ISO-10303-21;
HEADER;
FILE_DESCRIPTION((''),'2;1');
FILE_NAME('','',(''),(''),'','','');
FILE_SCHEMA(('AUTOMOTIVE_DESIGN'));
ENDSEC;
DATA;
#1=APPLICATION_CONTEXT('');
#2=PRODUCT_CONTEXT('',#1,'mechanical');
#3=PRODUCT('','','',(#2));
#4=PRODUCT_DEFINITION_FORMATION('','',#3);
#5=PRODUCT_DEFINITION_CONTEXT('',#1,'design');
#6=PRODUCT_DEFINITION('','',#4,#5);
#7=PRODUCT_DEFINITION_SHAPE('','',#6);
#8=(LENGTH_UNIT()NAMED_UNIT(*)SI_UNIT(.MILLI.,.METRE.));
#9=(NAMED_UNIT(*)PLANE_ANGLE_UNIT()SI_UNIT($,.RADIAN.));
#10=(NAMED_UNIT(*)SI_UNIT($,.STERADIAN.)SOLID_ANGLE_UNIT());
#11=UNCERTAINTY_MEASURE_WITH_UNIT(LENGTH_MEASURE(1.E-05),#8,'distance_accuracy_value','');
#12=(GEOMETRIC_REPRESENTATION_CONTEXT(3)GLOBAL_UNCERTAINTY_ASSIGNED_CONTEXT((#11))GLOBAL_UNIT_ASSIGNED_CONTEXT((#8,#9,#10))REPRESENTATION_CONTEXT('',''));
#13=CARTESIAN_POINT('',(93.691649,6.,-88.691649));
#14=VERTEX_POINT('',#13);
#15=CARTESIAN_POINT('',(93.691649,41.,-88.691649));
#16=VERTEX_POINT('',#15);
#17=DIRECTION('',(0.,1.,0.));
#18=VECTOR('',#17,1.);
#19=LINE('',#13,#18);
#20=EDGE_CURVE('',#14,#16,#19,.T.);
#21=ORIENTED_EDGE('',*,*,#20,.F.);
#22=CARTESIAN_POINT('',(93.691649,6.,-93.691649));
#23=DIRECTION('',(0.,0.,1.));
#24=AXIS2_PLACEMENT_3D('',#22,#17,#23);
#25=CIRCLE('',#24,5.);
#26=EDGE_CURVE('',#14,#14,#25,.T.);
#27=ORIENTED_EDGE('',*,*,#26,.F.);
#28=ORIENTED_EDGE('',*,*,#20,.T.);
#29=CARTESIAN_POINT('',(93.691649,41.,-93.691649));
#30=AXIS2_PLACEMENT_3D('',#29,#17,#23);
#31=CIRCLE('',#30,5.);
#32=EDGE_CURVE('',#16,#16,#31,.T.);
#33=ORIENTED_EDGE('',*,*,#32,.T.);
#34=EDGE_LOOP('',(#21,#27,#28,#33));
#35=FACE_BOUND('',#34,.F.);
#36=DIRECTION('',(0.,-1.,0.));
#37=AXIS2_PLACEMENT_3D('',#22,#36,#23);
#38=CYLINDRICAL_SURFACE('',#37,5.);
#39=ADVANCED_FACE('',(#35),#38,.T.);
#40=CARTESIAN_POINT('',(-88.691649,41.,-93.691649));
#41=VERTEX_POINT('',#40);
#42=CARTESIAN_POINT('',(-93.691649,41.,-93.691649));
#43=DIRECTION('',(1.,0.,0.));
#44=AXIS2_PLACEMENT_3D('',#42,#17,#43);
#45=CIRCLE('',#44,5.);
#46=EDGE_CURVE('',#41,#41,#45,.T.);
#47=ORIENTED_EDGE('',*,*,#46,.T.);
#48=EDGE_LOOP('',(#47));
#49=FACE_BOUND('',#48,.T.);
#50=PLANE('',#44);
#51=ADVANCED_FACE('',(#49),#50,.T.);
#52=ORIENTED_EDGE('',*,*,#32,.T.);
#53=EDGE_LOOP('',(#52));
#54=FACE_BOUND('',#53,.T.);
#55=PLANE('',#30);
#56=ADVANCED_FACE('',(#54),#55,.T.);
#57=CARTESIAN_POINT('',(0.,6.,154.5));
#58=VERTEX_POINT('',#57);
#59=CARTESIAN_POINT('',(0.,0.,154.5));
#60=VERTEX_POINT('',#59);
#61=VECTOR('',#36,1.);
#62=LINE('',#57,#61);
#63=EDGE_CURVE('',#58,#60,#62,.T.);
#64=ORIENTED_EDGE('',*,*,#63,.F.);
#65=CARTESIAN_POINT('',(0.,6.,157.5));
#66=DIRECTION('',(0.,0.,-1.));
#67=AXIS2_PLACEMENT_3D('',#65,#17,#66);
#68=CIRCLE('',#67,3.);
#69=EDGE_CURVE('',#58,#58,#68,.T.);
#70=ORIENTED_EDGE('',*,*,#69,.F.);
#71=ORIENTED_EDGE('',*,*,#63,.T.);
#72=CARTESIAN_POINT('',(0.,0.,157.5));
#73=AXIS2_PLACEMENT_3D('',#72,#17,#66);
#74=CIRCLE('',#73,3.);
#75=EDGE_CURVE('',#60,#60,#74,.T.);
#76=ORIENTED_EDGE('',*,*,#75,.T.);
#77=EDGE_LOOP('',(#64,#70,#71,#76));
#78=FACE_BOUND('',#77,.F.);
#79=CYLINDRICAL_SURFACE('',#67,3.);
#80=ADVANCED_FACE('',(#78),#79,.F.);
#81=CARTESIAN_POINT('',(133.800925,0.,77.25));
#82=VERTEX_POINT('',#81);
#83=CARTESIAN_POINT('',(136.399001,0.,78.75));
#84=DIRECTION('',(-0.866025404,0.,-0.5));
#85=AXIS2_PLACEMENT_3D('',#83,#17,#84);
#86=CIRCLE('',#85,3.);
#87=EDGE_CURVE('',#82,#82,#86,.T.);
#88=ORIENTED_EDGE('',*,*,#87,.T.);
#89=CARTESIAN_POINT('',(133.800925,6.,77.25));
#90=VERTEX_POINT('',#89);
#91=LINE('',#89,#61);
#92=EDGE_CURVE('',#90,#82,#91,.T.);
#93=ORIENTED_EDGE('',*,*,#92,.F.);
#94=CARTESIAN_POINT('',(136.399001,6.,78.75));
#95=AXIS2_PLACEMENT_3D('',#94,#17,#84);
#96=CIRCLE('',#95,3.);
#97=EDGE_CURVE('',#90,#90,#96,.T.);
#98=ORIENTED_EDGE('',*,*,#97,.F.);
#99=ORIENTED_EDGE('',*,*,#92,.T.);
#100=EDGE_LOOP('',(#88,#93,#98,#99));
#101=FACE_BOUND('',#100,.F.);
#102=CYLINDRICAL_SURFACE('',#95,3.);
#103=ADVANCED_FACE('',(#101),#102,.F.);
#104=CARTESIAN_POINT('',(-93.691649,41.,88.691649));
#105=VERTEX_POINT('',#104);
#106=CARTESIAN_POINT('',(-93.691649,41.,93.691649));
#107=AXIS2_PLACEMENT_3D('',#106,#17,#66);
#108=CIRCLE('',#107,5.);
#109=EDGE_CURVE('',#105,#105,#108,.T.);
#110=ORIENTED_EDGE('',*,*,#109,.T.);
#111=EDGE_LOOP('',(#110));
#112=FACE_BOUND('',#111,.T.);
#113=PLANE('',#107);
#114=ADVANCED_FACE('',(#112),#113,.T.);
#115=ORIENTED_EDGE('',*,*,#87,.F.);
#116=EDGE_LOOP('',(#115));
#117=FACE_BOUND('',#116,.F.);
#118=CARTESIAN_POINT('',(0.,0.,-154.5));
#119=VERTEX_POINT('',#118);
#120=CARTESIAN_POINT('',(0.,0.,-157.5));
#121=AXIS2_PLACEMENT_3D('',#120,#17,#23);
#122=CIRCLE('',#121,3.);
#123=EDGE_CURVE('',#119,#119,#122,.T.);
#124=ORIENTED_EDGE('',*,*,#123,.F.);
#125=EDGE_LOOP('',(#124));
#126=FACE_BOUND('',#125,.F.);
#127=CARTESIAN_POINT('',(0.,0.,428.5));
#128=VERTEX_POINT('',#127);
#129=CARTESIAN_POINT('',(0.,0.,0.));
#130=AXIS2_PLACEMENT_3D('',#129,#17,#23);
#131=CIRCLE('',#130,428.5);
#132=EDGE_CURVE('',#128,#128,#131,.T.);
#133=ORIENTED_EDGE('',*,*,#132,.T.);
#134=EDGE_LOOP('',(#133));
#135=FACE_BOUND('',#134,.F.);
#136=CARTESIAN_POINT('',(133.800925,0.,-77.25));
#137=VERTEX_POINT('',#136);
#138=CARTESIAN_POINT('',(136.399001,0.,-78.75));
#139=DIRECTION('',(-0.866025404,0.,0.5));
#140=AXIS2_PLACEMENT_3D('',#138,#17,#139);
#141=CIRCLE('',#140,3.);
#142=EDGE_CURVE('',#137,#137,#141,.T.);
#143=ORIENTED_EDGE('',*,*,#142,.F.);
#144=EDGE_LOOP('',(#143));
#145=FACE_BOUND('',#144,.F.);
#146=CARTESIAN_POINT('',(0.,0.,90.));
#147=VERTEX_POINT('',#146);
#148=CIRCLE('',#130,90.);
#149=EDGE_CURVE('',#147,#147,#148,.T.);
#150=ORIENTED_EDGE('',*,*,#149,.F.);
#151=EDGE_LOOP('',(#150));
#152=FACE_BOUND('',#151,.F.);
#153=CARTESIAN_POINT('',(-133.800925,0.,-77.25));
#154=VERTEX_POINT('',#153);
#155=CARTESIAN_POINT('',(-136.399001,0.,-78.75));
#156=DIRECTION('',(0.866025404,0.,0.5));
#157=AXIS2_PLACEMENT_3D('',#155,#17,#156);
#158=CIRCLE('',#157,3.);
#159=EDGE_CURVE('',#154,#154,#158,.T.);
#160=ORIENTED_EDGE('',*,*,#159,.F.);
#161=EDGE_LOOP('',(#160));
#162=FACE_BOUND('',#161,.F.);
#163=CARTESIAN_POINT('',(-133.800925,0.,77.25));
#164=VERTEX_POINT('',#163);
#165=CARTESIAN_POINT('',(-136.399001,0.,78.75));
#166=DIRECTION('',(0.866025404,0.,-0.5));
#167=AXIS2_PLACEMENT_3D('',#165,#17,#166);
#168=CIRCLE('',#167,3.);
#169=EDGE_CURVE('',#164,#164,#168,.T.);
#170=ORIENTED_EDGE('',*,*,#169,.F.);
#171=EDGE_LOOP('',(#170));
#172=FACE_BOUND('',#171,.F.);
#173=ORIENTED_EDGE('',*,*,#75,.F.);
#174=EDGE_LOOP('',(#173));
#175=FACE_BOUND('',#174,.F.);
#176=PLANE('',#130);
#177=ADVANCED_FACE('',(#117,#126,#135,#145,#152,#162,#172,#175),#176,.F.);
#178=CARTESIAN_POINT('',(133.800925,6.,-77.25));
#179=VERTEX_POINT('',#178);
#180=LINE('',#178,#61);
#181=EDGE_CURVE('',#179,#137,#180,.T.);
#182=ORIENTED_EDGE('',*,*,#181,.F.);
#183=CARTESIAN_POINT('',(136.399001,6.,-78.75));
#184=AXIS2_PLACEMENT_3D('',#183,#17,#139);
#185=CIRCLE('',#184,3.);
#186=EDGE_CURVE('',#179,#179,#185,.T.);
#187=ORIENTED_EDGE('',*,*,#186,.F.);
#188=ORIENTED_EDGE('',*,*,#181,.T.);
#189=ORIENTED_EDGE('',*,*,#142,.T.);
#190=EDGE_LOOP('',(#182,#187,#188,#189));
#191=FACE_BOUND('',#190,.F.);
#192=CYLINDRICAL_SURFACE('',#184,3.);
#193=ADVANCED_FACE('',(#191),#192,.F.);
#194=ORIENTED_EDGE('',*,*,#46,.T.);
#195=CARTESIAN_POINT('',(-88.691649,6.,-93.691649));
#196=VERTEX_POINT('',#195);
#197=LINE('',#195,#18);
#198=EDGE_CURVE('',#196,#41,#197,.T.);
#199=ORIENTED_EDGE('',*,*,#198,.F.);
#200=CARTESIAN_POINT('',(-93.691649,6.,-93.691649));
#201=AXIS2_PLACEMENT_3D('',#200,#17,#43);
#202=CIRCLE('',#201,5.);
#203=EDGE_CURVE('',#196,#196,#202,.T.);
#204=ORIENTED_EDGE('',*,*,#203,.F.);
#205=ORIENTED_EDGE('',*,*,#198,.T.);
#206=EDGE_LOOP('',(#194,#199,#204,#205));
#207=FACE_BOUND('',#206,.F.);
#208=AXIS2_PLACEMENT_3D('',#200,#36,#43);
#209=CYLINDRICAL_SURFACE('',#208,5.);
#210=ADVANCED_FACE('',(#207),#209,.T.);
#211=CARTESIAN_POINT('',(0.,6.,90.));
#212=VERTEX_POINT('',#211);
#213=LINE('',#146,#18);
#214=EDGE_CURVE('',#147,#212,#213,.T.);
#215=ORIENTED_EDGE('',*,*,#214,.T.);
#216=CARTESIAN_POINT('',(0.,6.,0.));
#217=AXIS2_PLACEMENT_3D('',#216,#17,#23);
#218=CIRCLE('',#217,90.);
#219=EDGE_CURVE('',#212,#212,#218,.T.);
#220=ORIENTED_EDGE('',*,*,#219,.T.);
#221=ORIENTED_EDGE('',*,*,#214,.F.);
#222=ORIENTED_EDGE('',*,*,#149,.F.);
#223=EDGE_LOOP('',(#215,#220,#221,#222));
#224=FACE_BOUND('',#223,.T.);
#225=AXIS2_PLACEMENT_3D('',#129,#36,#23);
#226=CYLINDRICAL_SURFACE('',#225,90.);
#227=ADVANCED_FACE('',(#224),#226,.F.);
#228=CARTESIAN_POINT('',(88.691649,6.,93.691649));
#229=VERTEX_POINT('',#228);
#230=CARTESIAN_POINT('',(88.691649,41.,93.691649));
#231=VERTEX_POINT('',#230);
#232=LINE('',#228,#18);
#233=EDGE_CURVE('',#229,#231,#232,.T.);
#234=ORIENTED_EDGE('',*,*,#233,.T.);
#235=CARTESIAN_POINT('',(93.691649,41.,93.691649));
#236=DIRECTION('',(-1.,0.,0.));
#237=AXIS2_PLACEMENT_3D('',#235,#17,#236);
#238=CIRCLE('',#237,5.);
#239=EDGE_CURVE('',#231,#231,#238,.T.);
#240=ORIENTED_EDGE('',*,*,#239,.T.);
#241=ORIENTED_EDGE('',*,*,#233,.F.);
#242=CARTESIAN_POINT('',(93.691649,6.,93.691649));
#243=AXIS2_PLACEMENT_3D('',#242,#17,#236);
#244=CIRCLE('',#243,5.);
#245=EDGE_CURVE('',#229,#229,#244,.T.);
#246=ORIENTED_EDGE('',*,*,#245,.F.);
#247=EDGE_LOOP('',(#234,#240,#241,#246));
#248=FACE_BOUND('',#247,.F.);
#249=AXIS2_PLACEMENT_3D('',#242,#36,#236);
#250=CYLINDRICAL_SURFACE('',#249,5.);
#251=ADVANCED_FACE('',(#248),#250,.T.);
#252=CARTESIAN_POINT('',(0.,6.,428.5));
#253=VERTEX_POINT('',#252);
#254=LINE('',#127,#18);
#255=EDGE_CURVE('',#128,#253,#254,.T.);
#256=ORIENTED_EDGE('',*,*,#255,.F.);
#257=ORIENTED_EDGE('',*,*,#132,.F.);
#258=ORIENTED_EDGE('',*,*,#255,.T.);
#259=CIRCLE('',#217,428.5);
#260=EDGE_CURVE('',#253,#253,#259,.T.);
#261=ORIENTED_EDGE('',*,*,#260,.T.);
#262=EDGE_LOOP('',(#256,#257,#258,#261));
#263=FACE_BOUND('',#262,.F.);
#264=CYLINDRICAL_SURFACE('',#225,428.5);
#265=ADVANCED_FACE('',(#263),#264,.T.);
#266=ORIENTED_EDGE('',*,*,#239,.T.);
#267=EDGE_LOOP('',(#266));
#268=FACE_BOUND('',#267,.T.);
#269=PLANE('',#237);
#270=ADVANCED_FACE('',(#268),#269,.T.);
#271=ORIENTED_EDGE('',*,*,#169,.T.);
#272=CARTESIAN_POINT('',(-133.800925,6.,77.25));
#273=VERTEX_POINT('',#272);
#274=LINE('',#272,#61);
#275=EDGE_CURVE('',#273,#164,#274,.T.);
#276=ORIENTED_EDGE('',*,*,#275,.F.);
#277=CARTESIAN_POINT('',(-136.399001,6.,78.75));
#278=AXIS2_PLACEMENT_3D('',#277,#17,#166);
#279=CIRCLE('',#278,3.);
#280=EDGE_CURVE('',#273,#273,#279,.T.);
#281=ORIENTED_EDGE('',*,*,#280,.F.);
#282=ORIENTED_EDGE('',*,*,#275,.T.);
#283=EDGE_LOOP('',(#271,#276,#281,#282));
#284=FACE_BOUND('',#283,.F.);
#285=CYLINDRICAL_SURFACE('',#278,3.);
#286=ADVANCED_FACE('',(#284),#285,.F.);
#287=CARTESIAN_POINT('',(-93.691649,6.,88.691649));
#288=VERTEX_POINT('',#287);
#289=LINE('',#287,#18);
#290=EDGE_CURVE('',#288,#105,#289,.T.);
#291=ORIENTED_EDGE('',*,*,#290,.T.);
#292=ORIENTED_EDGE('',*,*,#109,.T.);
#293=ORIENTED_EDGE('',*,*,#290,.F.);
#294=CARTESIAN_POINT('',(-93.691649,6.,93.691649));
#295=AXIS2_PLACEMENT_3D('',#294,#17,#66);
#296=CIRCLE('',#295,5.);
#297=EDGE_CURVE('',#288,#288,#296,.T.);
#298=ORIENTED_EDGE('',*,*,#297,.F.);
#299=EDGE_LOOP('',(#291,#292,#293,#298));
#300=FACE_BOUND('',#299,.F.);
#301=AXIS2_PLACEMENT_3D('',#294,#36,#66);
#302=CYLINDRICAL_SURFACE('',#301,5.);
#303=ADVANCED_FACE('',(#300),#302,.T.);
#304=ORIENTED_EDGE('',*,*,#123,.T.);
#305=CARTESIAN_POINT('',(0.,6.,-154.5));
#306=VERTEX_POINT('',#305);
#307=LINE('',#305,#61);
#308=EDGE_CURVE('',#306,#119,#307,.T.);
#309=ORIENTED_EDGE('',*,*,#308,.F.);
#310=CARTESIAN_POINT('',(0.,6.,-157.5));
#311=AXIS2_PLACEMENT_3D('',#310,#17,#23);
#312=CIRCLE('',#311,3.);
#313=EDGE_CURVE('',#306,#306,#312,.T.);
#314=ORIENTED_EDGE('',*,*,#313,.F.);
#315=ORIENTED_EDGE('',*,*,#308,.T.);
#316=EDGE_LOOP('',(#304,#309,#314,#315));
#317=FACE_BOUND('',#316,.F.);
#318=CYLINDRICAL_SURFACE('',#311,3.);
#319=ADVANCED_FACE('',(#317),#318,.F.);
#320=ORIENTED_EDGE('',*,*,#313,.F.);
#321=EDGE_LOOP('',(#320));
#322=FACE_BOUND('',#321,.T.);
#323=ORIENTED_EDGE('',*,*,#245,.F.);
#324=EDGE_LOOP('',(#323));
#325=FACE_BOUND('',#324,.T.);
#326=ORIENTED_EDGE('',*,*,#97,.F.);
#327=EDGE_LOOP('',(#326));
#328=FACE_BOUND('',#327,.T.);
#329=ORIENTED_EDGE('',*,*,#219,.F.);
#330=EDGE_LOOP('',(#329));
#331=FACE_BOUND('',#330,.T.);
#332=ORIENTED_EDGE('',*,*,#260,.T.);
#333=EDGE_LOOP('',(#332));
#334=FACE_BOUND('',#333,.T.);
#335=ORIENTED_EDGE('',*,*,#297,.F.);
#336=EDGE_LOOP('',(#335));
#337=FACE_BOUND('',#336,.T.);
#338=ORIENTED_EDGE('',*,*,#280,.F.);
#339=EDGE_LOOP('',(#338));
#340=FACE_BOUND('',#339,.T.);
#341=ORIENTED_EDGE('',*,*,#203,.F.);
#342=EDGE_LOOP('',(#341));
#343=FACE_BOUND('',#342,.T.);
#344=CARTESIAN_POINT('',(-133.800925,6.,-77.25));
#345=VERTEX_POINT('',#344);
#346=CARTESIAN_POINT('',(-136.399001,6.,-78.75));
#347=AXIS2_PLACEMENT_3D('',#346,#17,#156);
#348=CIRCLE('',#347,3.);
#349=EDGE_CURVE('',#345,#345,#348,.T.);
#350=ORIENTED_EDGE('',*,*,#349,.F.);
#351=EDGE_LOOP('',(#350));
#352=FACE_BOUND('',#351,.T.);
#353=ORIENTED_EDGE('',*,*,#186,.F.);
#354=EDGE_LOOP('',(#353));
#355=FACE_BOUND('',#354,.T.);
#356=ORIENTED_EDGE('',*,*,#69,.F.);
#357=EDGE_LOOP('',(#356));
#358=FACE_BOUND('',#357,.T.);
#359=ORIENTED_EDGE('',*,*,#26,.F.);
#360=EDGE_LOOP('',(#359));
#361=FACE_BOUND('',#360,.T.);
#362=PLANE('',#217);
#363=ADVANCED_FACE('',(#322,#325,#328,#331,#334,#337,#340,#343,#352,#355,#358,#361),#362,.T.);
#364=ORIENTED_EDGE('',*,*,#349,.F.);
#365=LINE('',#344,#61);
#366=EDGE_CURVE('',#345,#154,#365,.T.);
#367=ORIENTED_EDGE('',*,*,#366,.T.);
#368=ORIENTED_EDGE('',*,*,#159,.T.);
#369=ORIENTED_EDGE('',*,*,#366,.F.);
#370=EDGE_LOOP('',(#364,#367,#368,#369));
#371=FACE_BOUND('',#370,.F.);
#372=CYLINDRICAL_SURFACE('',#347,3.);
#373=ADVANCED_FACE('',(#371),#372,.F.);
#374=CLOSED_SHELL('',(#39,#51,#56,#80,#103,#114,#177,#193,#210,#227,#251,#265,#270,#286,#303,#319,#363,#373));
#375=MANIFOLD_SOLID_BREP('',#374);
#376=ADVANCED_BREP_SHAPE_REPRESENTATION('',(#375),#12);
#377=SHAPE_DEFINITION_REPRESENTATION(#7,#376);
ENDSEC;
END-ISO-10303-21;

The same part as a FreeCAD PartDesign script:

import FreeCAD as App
import Part
import Sketcher
Q = App.Units.Quantity

doc = App.newDocument("Part")
params = doc.addObject("Spreadsheet::Sheet", "Params")
for row, (alias, value) in enumerate([
    ("sketch1_diameter", "857 mm"),
    ("sketch1_diameter2", "180 mm"),
    ("pad1_length", "6 mm"),
    ("sketch2_diameter", "6 mm"),
    ("pocket1_length", "6 mm"),
    ("sketch3_diameter", "10 mm"),
    ("pad2_length", "35 mm"),
], start=1):
    params.set(f"A{row}", alias)
    params.set(f"B{row}", "=" + value)
    params.setAlias(f"B{row}", alias)

body = doc.addObject("PartDesign::Body", "Body")

# Sketch on XZ plane
sketch1 = doc.addObject("Sketcher::SketchObject", "Sketch")
body.addObject(sketch1)
sketch1.AttachmentSupport = (doc.XZ_Plane, [""])
sketch1.MapMode = "FlatFace"
sketch1.addGeometry(Part.Circle(App.Vector(0, 0, 0), App.Vector(0, 0, 1), 428), False)
sketch1.addGeometry(Part.Circle(App.Vector(0, 0, 0), App.Vector(0, 0, 1), 90), False)
sketch1.addConstraint(Sketcher.Constraint("Coincident", 0, 3, -1, 1))
sketch1.addConstraint(Sketcher.Constraint("Coincident", 1, 3, -1, 1))
sketch1.addConstraint(Sketcher.Constraint("Diameter", 0, Q("857 mm")))
sketch1.addConstraint(Sketcher.Constraint("Diameter", 1, Q("180 mm")))
sketch1.setExpression("Constraints[2]", "Params.sketch1_diameter")
sketch1.setExpression("Constraints[3]", "Params.sketch1_diameter2")
pad1 = doc.addObject("PartDesign::Pad", "Pad")
body.addObject(pad1)
pad1.Profile = sketch1
pad1.setExpression("Length", "Params.pad1_length")
pad1.Reversed = True

# Sketch on XZ plane
sketch2 = doc.addObject("Sketcher::SketchObject", "Sketch001")
body.addObject(sketch2)
sketch2.AttachmentSupport = (doc.XZ_Plane, [""])
sketch2.MapMode = "FlatFace"
sketch2.AttachmentOffset = App.Placement(App.Vector(0, 0, -6), App.Rotation())
sketch2.addGeometry(Part.Circle(App.Vector(0, -157.5, 0), App.Vector(0, 0, 1), 3), False)
sketch2.addConstraint(Sketcher.Constraint("PointOnObject", 0, 3, -2))
sketch2.addConstraint(Sketcher.Constraint("Diameter", 0, Q("6 mm")))
sketch2.addConstraint(Sketcher.Constraint("DistanceY", 0, 3, -1, 1, Q("157.5 mm")))
sketch2.setExpression("Constraints[1]", "Params.sketch2_diameter")
pocket1 = doc.addObject("PartDesign::Pocket", "Pocket")
body.addObject(pocket1)
pocket1.Profile = sketch2
pocket1.setExpression("Length", "Params.pocket1_length")
pocket1.Reversed = True

# Sketch on XZ plane
sketch3 = doc.addObject("Sketcher::SketchObject", "Sketch002")
body.addObject(sketch3)
sketch3.AttachmentSupport = (doc.XZ_Plane, [""])
sketch3.MapMode = "FlatFace"
sketch3.AttachmentOffset = App.Placement(App.Vector(0, 0, -6), App.Rotation())
sketch3.addGeometry(Part.Circle(App.Vector(94, -94, 0), App.Vector(0, 0, 1), 5), False)
sketch3.addConstraint(Sketcher.Constraint("Diameter", 0, Q("10 mm")))
sketch3.addConstraint(Sketcher.Constraint("DistanceX", -1, 1, 0, 3, Q("93.691649 mm")))
sketch3.addConstraint(Sketcher.Constraint("DistanceY", 0, 3, -1, 1, Q("93.691649 mm")))
sketch3.setExpression("Constraints[0]", "Params.sketch3_diameter")
pad2 = doc.addObject("PartDesign::Pad", "Pad001")
body.addObject(pad2)
pad2.Profile = sketch3
pad2.setExpression("Length", "Params.pad2_length")
pad2.Reversed = True
doc.recompute()

polarpattern = doc.addObject("PartDesign::PolarPattern", "PolarPattern")
body.addObject(polarpattern)
polarpattern.Originals = [pocket1]
polarpattern.Axis = (doc.Y_Axis, [""])
polarpattern.Angle = 360
polarpattern.Occurrences = 6
body.Tip = polarpattern
doc.recompute()

polarpattern2 = doc.addObject("PartDesign::PolarPattern", "PolarPattern001")
body.addObject(polarpattern2)
polarpattern2.Originals = [pad2]
polarpattern2.Axis = (doc.Y_Axis, [""])
polarpattern2.Angle = 360
polarpattern2.Occurrences = 4
body.Tip = polarpattern2

doc.recompute()
